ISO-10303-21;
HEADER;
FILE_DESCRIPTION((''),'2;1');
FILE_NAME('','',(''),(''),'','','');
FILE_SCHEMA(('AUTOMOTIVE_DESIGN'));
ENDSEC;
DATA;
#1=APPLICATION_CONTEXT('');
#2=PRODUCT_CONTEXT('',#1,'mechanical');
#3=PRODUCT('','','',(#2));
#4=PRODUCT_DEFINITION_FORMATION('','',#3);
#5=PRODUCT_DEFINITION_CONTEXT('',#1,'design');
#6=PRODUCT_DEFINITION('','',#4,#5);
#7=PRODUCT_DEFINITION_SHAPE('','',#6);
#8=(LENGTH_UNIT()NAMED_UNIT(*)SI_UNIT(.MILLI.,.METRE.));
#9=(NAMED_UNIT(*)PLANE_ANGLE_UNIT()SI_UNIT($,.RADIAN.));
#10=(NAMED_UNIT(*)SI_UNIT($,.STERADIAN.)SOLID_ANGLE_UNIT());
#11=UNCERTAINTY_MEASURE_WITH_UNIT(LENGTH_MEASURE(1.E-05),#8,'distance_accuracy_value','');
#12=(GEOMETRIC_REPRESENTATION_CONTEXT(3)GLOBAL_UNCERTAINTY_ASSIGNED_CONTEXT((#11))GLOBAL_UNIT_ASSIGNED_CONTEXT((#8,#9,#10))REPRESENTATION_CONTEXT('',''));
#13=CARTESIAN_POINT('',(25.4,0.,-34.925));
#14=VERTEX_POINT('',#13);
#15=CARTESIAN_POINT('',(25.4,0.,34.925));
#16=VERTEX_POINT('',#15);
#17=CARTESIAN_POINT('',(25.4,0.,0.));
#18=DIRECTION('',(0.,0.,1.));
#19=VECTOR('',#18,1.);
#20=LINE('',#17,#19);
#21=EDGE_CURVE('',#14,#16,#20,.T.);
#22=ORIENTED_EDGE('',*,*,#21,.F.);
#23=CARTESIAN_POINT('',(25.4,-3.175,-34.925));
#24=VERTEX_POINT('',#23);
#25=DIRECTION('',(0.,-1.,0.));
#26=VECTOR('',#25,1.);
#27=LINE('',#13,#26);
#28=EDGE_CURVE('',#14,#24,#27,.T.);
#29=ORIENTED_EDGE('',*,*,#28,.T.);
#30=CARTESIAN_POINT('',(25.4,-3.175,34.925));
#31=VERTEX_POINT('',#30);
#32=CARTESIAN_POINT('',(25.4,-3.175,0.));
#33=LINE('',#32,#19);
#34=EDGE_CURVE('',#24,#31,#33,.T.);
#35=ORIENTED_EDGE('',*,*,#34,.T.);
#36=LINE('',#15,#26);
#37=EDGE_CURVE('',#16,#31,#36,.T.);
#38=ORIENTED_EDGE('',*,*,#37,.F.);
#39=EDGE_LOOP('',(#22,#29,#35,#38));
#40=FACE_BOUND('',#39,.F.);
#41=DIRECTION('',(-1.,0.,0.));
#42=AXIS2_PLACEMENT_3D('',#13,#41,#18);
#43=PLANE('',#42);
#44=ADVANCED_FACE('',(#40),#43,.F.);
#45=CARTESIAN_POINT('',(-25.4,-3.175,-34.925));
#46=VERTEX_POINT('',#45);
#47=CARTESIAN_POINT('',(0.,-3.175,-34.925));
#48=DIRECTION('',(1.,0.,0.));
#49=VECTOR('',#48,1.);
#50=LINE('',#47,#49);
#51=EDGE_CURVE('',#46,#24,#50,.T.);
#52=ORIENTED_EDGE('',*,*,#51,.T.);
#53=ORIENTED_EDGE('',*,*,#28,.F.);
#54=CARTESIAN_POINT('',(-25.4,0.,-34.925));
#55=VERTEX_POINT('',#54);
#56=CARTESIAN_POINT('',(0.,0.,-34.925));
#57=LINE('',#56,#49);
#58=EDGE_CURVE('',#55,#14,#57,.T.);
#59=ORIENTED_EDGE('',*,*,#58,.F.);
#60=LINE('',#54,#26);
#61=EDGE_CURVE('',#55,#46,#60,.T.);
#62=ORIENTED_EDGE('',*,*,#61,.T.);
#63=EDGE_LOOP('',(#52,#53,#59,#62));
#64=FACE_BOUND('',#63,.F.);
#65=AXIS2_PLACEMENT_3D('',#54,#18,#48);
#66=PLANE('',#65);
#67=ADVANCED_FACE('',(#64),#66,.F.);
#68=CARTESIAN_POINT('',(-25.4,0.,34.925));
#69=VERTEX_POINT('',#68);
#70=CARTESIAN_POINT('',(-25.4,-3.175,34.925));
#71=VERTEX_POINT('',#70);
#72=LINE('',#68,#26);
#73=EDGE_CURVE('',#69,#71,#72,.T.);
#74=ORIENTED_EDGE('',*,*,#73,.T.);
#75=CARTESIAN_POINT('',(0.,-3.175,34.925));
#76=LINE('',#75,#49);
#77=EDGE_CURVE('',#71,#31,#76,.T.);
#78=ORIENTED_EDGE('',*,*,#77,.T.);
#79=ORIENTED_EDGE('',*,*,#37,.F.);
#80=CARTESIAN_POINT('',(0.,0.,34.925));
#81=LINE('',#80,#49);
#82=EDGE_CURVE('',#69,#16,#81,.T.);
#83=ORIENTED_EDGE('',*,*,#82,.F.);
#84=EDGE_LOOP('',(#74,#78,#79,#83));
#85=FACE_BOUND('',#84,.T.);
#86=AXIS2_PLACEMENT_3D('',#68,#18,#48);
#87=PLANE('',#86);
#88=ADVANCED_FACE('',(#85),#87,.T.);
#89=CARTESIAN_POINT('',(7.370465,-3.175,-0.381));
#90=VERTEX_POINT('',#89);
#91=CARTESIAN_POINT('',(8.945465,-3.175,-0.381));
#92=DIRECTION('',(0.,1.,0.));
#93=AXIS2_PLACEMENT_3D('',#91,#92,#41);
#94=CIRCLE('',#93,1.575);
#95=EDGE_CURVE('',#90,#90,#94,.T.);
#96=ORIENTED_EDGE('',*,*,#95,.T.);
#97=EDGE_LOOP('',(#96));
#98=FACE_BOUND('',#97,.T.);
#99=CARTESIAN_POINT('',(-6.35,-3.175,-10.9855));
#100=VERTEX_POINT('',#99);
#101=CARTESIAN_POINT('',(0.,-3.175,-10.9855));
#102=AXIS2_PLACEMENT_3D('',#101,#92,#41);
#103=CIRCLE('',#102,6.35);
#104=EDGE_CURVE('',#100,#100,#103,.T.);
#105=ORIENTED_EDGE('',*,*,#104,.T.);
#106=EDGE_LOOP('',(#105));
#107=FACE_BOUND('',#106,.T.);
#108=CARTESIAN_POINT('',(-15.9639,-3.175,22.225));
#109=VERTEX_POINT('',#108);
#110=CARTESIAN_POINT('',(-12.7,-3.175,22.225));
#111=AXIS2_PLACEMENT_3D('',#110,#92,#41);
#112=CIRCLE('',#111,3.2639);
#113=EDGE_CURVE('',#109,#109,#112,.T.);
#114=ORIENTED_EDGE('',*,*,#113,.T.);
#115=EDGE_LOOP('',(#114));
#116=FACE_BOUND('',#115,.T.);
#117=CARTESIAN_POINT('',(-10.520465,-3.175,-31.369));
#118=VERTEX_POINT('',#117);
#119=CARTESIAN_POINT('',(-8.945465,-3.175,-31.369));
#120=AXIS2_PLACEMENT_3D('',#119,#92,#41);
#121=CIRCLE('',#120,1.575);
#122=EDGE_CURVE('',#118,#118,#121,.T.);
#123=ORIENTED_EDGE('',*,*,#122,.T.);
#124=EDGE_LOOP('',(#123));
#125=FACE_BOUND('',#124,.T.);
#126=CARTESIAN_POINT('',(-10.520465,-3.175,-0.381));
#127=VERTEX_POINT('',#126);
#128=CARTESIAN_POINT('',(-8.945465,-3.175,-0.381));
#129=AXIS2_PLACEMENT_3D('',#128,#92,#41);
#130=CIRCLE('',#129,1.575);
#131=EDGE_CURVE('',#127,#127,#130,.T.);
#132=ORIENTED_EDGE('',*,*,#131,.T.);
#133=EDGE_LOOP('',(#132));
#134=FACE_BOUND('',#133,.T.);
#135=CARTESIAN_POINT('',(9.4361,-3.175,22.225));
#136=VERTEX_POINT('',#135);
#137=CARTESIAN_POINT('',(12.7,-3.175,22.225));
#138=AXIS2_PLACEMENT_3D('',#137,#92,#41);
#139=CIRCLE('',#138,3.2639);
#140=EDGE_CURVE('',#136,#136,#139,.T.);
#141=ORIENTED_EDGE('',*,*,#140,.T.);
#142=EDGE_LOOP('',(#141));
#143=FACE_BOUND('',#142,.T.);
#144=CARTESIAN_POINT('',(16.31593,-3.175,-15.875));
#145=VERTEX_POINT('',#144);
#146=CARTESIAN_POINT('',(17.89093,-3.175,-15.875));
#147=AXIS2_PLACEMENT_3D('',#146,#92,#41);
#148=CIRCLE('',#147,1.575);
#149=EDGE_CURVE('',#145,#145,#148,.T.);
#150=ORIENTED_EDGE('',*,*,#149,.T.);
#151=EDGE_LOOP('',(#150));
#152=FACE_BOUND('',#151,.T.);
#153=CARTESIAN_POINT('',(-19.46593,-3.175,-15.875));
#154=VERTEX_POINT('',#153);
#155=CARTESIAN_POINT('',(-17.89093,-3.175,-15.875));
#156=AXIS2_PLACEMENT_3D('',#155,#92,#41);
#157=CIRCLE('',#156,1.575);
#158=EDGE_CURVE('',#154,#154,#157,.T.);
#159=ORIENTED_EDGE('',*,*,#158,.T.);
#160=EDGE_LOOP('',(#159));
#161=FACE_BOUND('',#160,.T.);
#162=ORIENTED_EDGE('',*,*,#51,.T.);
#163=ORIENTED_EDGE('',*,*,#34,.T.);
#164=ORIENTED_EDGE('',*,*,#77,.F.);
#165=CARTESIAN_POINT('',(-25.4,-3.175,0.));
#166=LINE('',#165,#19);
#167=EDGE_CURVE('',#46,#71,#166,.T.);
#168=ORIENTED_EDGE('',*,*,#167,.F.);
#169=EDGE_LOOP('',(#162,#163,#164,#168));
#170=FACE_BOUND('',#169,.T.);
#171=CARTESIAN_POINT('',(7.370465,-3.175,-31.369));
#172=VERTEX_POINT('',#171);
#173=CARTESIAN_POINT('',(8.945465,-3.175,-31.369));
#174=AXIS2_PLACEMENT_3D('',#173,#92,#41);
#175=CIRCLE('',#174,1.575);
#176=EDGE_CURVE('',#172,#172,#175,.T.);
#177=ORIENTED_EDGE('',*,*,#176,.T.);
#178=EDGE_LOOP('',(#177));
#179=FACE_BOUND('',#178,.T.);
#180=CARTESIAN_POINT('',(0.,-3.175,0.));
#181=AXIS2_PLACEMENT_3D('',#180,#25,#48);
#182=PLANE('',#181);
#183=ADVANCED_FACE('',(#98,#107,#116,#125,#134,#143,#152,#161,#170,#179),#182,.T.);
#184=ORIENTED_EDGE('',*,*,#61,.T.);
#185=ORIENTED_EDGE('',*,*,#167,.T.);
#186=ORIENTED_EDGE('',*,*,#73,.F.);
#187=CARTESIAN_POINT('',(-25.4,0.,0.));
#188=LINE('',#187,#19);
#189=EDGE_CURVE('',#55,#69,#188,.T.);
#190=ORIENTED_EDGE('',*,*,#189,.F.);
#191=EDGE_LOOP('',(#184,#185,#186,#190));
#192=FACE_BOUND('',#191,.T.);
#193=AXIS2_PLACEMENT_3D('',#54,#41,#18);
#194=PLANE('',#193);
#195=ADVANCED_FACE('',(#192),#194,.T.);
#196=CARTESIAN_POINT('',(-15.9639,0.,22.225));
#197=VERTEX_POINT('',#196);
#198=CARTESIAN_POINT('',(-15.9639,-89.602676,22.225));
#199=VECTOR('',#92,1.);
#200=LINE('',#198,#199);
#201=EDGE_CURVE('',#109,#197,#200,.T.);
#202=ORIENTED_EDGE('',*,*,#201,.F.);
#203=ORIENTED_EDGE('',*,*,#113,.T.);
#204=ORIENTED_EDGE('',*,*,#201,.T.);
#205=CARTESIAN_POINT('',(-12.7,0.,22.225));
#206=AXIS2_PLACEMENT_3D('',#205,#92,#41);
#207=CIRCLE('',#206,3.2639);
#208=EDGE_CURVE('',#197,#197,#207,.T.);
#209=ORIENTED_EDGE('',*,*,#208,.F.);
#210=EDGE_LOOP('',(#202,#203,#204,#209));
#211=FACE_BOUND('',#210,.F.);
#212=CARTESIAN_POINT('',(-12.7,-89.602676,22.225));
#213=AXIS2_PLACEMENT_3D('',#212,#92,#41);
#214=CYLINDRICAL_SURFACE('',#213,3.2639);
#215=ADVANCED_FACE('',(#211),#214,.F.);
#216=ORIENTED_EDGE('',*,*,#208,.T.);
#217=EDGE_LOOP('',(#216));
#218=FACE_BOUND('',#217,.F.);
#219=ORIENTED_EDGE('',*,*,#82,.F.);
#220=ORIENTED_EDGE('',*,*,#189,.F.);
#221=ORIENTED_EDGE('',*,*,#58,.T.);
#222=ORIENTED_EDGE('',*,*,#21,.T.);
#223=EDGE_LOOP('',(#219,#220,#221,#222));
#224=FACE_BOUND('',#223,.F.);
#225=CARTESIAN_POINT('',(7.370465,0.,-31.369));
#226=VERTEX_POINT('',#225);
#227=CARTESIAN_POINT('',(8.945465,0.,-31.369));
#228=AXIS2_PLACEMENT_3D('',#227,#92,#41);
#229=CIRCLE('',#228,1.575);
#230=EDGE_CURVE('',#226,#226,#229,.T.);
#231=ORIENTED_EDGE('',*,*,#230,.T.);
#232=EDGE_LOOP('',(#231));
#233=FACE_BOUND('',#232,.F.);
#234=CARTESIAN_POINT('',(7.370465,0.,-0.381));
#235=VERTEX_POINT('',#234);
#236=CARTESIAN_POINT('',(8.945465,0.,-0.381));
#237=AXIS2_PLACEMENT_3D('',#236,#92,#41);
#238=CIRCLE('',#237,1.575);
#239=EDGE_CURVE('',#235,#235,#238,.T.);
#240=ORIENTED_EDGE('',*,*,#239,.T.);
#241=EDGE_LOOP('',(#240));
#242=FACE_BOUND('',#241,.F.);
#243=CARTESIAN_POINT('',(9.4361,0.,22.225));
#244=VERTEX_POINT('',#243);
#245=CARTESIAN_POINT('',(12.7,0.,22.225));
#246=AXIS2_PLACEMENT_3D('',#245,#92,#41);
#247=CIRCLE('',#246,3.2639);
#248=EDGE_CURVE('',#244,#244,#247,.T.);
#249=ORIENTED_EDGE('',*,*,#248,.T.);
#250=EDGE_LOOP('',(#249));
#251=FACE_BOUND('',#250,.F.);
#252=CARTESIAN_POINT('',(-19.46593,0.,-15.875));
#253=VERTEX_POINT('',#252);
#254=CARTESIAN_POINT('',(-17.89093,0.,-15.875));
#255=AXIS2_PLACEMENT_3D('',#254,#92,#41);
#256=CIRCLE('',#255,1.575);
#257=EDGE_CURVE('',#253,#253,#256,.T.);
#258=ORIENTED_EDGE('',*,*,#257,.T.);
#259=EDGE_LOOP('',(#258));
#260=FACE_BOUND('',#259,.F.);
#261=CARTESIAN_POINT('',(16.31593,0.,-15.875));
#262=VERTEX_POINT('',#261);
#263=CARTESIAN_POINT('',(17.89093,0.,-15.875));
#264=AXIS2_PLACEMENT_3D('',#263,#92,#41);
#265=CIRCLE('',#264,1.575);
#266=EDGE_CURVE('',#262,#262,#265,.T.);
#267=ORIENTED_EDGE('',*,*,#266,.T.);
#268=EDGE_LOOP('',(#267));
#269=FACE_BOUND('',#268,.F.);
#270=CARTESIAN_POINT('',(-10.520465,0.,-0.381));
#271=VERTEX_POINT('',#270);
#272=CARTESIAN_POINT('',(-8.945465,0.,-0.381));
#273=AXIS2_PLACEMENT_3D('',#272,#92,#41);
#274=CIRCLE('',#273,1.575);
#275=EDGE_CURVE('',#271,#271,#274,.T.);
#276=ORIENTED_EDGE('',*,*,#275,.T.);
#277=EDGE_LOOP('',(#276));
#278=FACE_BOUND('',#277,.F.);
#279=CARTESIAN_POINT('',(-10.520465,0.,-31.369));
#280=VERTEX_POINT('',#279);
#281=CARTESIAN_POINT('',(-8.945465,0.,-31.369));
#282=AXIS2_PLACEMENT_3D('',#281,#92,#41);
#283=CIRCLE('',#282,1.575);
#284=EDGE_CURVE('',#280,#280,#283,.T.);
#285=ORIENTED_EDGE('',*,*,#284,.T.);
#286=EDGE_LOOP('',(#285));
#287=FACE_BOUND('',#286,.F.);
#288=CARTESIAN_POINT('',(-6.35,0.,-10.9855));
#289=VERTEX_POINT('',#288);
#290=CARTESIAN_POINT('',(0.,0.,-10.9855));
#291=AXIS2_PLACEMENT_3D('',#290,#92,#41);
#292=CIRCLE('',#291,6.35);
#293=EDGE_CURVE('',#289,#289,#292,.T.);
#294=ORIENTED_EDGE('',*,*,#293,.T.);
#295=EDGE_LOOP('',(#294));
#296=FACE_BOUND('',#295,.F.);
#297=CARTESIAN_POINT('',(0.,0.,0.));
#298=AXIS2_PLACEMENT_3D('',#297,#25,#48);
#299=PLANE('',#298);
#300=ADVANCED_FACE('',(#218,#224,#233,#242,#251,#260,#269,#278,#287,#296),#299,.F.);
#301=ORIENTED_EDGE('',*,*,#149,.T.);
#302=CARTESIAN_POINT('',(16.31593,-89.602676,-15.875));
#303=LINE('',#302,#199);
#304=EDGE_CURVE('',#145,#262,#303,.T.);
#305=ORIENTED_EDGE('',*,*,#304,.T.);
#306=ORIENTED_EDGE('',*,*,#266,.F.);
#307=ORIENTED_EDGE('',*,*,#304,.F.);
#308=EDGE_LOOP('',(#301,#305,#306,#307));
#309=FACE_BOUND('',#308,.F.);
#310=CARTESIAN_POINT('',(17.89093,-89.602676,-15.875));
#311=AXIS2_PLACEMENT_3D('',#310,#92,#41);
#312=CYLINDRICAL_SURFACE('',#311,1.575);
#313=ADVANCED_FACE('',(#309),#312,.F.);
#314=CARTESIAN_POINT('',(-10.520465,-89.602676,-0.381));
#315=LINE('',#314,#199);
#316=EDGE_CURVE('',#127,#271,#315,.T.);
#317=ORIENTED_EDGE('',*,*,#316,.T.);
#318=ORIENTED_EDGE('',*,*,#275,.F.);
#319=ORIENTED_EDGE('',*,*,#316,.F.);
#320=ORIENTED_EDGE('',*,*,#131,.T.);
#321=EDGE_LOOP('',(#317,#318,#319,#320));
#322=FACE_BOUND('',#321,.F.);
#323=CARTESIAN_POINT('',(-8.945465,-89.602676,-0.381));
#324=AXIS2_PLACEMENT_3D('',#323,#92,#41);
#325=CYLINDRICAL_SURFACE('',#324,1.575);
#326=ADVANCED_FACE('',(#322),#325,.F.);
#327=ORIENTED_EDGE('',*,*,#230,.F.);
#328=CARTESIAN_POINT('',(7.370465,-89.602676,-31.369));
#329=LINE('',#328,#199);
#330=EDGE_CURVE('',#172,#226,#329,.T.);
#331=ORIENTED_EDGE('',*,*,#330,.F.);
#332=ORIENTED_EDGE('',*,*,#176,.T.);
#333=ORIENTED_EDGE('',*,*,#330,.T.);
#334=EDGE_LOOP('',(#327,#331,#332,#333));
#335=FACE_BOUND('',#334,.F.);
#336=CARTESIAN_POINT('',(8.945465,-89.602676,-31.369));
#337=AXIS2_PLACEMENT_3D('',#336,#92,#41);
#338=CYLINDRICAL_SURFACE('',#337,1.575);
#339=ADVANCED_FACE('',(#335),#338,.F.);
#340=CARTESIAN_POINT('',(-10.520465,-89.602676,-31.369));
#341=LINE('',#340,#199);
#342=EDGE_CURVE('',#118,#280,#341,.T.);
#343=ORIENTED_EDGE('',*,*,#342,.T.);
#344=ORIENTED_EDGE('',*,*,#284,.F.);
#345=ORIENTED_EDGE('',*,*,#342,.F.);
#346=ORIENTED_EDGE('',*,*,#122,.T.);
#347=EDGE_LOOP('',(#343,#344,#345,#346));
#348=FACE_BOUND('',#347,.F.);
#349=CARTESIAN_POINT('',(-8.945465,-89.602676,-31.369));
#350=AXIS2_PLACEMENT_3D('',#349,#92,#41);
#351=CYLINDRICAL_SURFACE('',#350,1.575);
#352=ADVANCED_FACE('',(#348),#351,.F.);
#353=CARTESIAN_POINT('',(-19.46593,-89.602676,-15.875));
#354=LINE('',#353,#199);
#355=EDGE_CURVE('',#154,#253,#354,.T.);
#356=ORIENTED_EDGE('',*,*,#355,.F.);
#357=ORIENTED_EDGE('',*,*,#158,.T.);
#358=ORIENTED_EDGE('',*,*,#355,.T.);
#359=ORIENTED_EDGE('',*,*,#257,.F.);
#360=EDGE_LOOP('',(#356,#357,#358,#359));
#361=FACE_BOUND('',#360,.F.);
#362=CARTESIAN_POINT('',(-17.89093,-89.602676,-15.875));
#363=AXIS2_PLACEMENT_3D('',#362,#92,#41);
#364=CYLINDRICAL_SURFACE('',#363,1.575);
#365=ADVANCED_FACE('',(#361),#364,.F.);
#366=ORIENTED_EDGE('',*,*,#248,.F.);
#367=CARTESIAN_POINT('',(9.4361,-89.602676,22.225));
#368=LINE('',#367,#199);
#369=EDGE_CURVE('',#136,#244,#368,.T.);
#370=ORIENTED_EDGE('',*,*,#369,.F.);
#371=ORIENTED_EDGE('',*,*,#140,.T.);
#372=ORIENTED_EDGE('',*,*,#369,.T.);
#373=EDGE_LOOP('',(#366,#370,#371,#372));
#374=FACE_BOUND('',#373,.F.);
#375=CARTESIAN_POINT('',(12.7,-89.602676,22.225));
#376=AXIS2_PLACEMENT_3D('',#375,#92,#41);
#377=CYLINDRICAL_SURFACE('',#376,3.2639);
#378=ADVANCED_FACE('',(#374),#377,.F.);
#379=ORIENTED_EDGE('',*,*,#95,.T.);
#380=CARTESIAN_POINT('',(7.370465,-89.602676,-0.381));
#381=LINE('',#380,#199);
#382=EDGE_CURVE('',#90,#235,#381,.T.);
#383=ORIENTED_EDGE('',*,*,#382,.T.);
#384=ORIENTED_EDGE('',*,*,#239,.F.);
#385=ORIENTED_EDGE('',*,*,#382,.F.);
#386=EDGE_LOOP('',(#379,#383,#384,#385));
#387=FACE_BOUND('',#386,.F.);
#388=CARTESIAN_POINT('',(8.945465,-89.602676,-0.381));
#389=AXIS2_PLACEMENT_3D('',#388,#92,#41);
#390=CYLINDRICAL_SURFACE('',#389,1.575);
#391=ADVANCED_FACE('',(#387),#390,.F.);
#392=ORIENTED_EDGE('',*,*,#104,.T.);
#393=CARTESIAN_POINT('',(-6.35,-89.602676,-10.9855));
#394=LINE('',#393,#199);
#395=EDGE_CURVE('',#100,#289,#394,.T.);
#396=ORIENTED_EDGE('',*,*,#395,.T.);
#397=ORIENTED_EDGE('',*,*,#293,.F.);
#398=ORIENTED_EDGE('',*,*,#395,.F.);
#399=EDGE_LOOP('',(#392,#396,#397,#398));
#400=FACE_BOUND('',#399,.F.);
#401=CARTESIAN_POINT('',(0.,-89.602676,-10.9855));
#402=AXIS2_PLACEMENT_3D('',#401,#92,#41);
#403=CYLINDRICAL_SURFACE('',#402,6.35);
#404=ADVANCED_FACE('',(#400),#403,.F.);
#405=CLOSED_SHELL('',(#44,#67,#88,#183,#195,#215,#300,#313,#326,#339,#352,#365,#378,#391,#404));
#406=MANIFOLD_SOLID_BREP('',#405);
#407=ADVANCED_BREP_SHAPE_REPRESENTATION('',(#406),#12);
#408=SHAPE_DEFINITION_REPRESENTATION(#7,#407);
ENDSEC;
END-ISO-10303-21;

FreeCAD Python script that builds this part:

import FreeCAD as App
import Part
import Sketcher
Q = App.Units.Quantity


def add_polygon(sketch, points):
    """Adds a closed chain of lines whose ends are joined by coincident constraints."""
    first, n = sketch.GeometryCount, len(points)
    for a, b in zip(points, points[1:] + points[:1]):
        sketch.addGeometry(Part.LineSegment(App.Vector(*a, 0), App.Vector(*b, 0)), False)
    for i in range(n):
        sketch.addConstraint(Sketcher.Constraint("Coincident", first + i, 2, first + (i + 1) % n, 1))

doc = App.newDocument("Part")
params = doc.addObject("Spreadsheet::Sheet", "Params")
for row, (alias, value) in enumerate([
    ("sketch1_width", "2 in"),
    ("sketch1_height", "2.75 in"),
    ("pad1_length", "0.125 in"),
    ("sketch2_diameter", "0.257 in"),
    ("hole_diameter", "0.257 in"),
    ("hole2_diameter", "3.15 mm"),
    ("sketch4_diameter", "0.5 in"),
    ("hole3_diameter", "0.5 in"),
], start=1):
    params.set(f"A{row}", alias)
    params.set(f"B{row}", "=" + value)
    params.setAlias(f"B{row}", alias)

body = doc.addObject("PartDesign::Body", "Body")

# Sketch on XZ plane
sketch1 = body.newObject("Sketcher::SketchObject", "Sketch")
sketch1.AttachmentSupport = (doc.getObject("XZ_Plane"), [""])
sketch1.MapMode = "FlatFace"
add_polygon(sketch1, [(-25.4, 34.925), (-25.4, -34.925), (25.4, -34.925), (25.4, 34.925)])  # lines 0-3
sketch1.addConstraint([
    Sketcher.Constraint("Vertical", 0),
    Sketcher.Constraint("Horizontal", 1),
    Sketcher.Constraint("Vertical", 2),
    Sketcher.Constraint("Horizontal", 3),
    Sketcher.Constraint("Symmetric", 0, 2, 2, 2, -1, 1),
    Sketcher.Constraint("DistanceX", 1, 1, 1, 2, Q("2 in")),
    Sketcher.Constraint("DistanceY", 0, 2, 0, 1, Q("2.75 in")),
])
sketch1.setExpression("Constraints[9]", "Params.sketch1_width")
sketch1.setExpression("Constraints[10]", "Params.sketch1_height")
pad1 = body.newObject("PartDesign::Pad", "Pad")
pad1.Profile = sketch1
pad1.setExpression("Length", "Params.pad1_length")

# Sketch on XZ plane
sketch2 = body.newObject("Sketcher::SketchObject", "Sketch001")
sketch2.AttachmentSupport = (doc.getObject("XZ_Plane"), [""])
sketch2.MapMode = "FlatFace"
sketch2.AttachmentOffset = App.Placement(App.Vector(0, 0, 0.125 * 25.4), App.Rotation())
sketch2.addGeometry([
    Part.Circle(App.Vector(-12.7, 22.225, 0), App.Vector(0, 0, 1), 3.2639),
    Part.Circle(App.Vector(12.7, 22.225, 0), App.Vector(0, 0, 1), 3.2639),
], False)
sketch2.addConstraint([
    Sketcher.Constraint("Equal", 0, 1),
    Sketcher.Constraint("Symmetric", 0, 3, 1, 3, -2),
    Sketcher.Constraint("Diameter", 0, Q("0.257 in")),
    Sketcher.Constraint("DistanceX", 0, 3, 1, 3, Q("1 in")),
    Sketcher.Constraint("DistanceY", -1, 1, 0, 3, Q("0.875 in")),
])
sketch2.setExpression("Constraints[2]", "Params.sketch2_diameter")
doc.recompute()
hole = body.newObject("PartDesign::Hole", "Hole")
hole.Profile = sketch2
hole.ThreadType = "None"
hole.setExpression("Diameter", "Params.hole_diameter")
hole.DepthType = "ThroughAll"

# Sketch on XZ plane
sketch3 = body.newObject("Sketcher::SketchObject", "Sketch002")
sketch3.AttachmentSupport = (doc.getObject("XZ_Plane"), [""])
sketch3.MapMode = "FlatFace"
sketch3.AttachmentOffset = App.Placement(App.Vector(0, 0, 0.125 * 25.4), App.Rotation())
sketch3.addGeometry([
    Part.Circle(App.Vector(-8.945465, -0.381, 0), App.Vector(0, 0, 1), 1.575),  # 0
    Part.Circle(App.Vector(8.945465, -0.381, 0), App.Vector(0, 0, 1), 1.575),  # 1
    Part.Circle(App.Vector(17.89093, -15.875, 0), App.Vector(0, 0, 1), 1.575),  # 2
    Part.Circle(App.Vector(8.945465, -31.369, 0), App.Vector(0, 0, 1), 1.575),  # 3
    Part.Circle(App.Vector(-8.945465, -31.369, 0), App.Vector(0, 0, 1), 1.575),  # 4
    Part.Circle(App.Vector(-17.89093, -15.875, 0), App.Vector(0, 0, 1), 1.575),  # 5
], False)
sketch3.addConstraint([
    Sketcher.Constraint("Equal", 0, 1),
    Sketcher.Constraint("Equal", 1, 2),
    Sketcher.Constraint("Equal", 2, 3),
    Sketcher.Constraint("Equal", 3, 4),
    Sketcher.Constraint("Equal", 4, 5),
    Sketcher.Constraint("Symmetric", 0, 3, 1, 3, -2),
    Sketcher.Constraint("Symmetric", 3, 3, 4, 3, -2),
    Sketcher.Constraint("Symmetric", 2, 3, 5, 3, -2),
    Sketcher.Constraint("Vertical", 1, 3, 3, 3),
    Sketcher.Constraint("Diameter", 0, Q("3.15 mm")),
    Sketcher.Constraint("DistanceY", 2, 3, 1, 3, Q("0.61 in")),
    Sketcher.Constraint("DistanceY", 3, 3, 2, 3, Q("0.61 in")),
    Sketcher.Constraint("DistanceY", 0, 3, -1, 1, Q("0.015 in")),
    Sketcher.Constraint("DistanceX", -1, 1, 2, 3, Q("17.89093 mm")),
    Sketcher.Constraint("DistanceX", 0, 3, 1, 3, Q("17.89093 mm")),
])
doc.recompute()
hole2 = body.newObject("PartDesign::Hole", "Hole001")
hole2.Profile = sketch3
hole2.ThreadType = "None"
hole2.setExpression("Diameter", "Params.hole2_diameter")
hole2.DepthType = "ThroughAll"

# Sketch on XZ plane
sketch4 = body.newObject("Sketcher::SketchObject", "Sketch003")
sketch4.AttachmentSupport = (doc.getObject("XZ_Plane"), [""])
sketch4.MapMode = "FlatFace"
sketch4.AttachmentOffset = App.Placement(App.Vector(0, 0, 0.125 * 25.4), App.Rotation())
sketch4.addGeometry(Part.Circle(App.Vector(0, -10.9855, 0), App.Vector(0, 0, 1), 6.35), False)
sketch4.addConstraint([
    Sketcher.Constraint("PointOnObject", 0, 3, -2),
    Sketcher.Constraint("Diameter", 0, Q("0.5 in")),
    Sketcher.Constraint("DistanceY", 0, 3, -1, 1, Q("0.4325 in")),
])
sketch4.setExpression("Constraints[1]", "Params.sketch4_diameter")
doc.recompute()
hole3 = body.newObject("PartDesign::Hole", "Hole002")
hole3.Profile = sketch4
hole3.ThreadType = "None"
hole3.setExpression("Diameter", "Params.hole3_diameter")
hole3.DepthType = "ThroughAll"

doc.recompute()
